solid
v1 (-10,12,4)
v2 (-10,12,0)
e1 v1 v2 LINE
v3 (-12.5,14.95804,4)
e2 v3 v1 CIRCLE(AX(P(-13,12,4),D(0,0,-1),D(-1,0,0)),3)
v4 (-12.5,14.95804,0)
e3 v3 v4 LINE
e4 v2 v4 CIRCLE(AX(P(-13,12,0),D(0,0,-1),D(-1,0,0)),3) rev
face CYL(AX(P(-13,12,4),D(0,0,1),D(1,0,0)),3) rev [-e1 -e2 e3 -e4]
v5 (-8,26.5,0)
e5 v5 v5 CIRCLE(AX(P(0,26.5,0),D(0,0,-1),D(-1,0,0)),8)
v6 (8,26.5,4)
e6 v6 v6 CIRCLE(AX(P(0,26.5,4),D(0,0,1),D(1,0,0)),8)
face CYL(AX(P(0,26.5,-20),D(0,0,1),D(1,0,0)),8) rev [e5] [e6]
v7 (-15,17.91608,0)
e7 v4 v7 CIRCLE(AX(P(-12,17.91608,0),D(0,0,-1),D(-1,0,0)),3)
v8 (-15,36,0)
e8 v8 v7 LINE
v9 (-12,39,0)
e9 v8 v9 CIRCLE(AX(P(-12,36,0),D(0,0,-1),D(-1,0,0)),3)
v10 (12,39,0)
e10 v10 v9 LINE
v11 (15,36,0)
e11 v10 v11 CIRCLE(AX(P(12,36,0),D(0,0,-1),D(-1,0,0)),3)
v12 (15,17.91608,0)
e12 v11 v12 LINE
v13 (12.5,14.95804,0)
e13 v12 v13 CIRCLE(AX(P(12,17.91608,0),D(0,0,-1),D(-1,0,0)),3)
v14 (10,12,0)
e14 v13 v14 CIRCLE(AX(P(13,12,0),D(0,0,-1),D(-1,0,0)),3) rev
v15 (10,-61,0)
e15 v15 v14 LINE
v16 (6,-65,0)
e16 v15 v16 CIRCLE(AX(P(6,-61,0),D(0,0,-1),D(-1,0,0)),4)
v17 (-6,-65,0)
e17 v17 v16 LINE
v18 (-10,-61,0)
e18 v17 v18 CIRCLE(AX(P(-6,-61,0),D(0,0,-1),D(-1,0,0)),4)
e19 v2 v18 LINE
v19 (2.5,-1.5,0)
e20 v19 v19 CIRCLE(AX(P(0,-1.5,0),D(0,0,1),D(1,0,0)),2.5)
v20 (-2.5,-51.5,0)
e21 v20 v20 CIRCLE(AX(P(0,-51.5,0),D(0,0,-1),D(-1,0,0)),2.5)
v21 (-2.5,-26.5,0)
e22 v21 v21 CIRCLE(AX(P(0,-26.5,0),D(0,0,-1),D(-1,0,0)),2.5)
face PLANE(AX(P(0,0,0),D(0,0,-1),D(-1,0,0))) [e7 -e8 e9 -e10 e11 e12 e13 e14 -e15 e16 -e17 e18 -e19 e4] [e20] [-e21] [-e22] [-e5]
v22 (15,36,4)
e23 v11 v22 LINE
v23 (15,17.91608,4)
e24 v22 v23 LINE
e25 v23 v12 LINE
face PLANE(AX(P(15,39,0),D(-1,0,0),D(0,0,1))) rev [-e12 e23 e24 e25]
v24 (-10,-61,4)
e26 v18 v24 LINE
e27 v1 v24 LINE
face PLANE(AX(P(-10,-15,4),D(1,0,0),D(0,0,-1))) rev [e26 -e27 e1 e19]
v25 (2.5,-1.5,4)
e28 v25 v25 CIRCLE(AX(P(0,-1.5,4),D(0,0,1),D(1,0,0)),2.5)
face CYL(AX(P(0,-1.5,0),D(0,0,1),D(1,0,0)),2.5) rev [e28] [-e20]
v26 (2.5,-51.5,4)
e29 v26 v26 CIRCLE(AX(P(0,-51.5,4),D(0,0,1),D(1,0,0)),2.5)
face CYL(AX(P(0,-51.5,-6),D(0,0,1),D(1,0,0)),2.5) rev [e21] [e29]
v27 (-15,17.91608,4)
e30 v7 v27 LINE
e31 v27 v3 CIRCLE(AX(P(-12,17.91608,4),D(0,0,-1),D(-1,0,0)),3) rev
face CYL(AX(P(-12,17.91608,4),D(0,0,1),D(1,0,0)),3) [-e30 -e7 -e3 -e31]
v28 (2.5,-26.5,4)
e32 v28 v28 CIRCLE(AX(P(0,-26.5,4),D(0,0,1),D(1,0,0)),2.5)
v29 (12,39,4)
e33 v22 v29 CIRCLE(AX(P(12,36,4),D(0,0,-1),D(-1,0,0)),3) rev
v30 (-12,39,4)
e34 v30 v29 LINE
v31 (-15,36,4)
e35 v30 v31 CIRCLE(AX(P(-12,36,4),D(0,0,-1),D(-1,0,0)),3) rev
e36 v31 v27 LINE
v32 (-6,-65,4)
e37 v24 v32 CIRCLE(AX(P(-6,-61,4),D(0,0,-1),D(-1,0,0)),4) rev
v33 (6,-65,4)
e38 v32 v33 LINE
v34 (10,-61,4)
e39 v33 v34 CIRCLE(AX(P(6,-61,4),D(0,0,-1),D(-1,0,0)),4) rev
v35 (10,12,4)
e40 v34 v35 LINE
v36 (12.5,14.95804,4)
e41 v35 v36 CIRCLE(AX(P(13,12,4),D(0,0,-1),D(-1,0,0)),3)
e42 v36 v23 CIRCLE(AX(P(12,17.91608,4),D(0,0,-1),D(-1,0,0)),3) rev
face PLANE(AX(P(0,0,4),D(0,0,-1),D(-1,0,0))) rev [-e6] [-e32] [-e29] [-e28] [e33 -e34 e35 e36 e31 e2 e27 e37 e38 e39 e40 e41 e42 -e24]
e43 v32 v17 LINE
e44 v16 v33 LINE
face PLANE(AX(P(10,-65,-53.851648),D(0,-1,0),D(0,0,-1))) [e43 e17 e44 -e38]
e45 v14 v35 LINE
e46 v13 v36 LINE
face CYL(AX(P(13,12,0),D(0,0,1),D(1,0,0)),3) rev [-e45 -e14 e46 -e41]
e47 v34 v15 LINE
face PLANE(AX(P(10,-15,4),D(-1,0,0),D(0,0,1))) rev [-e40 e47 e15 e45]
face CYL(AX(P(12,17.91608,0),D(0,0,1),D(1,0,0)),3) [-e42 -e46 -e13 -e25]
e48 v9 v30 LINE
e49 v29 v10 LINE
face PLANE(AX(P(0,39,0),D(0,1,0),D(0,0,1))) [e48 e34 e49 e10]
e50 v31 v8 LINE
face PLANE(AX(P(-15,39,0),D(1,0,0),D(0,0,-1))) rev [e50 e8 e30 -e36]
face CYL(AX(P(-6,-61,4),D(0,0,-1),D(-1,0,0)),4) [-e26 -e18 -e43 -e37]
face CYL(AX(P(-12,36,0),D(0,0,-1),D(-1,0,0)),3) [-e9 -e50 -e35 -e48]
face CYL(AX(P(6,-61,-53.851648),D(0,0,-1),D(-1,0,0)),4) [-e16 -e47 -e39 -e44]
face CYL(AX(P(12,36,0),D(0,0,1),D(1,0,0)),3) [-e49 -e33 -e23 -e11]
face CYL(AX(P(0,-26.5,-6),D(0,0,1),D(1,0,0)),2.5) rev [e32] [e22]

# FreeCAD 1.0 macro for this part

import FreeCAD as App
import Part
import Sketcher
from FreeCAD import Vector


def edges_at(feature, points):
    """Names of the edges that pass closest to the given points."""
    edges = feature.Shape.Edges
    near = lambda p: min(range(len(edges)), key=lambda i: edges[i].distToShape(Part.Vertex(*p))[0])
    return sorted({f"Edge{near(p) + 1}" for p in points})


def add_polygon(sketch, points):
    """Adds a closed chain of lines whose ends are joined by coincident constraints."""
    first, n = sketch.GeometryCount, len(points)
    for a, b in zip(points, points[1:] + points[:1]):
        sketch.addGeometry(Part.LineSegment(App.Vector(*a, 0), App.Vector(*b, 0)), False)
    for i in range(n):
        sketch.addConstraint(Sketcher.Constraint("Coincident", first + i, 2, first + (i + 1) % n, 1))

doc = App.newDocument("Part")
body = doc.addObject("PartDesign::Body", "Body")

sketch1 = doc.addObject("Sketcher::SketchObject", "Sketch")
body.addObject(sketch1)
sketch1.AttachmentSupport = (doc.XY_Plane, [""])
sketch1.MapMode = "FlatFace"
add_polygon(sketch1, [(-10, 15), (-10, -15), (10, -15), (10, 15)])
sketch1.addGeometry(Part.Circle(Vector(-5, -7, 0), Vector(0, 0, 1), 1.5), False)
sketch1.addGeometry(Part.Circle(Vector(5, -7, 0), Vector(0, 0, 1), 1.5), False)
sketch1.addGeometry(Part.Circle(Vector(-5, 3, 0), Vector(0, 0, 1), 1.5), False)
sketch1.addGeometry(Part.Circle(Vector(5, 3, 0), Vector(0, 0, 1), 1.5), False)
sketch1.addConstraint(Sketcher.Constraint("Vertical", 0))
sketch1.addConstraint(Sketcher.Constraint("Horizontal", 1))
sketch1.addConstraint(Sketcher.Constraint("Vertical", 2))
sketch1.addConstraint(Sketcher.Constraint("Horizontal", 3))
sketch1.addConstraint(Sketcher.Constraint("Equal", 4, 5))
sketch1.addConstraint(Sketcher.Constraint("Equal", 5, 6))
sketch1.addConstraint(Sketcher.Constraint("Equal", 6, 7))
sketch1.addConstraint(Sketcher.Constraint("Symmetric", 0, 2, 2, 2, -1, 1))
sketch1.addConstraint(Sketcher.Constraint("Symmetric", 4, 3, 5, 3, -2))
sketch1.addConstraint(Sketcher.Constraint("Symmetric", 6, 3, 7, 3, -2))
sketch1.addConstraint(Sketcher.Constraint("Vertical", 4, 3, 6, 3))
sketch1.addConstraint(Sketcher.Constraint("Diameter", 4, 3.0))
sketch1.addConstraint(Sketcher.Constraint("DistanceX", 1, 1, 1, 2, 20.0))
sketch1.addConstraint(Sketcher.Constraint("DistanceY", 0, 2, 0, 1, 30.0))
sketch1.addConstraint(Sketcher.Constraint("DistanceX", 4, 3, -1, 1, 5.0))
sketch1.addConstraint(Sketcher.Constraint("DistanceY", 4, 3, -1, 1, 7.0))
sketch1.addConstraint(Sketcher.Constraint("DistanceY", -1, 1, 6, 3, 3.0))
pad1 = doc.addObject("PartDesign::Pad", "Pad")
body.addObject(pad1)
pad1.Profile = sketch1
pad1.Length = 4

sketch2 = doc.addObject("Sketcher::SketchObject", "Sketch001")
body.addObject(sketch2)
sketch2.AttachmentSupport = (doc.XZ_Plane, [""])
sketch2.MapMode = "FlatFace"
sketch2.AttachmentOffset = App.Placement(Vector(0, 0, -15), App.Rotation())
add_polygon(sketch2, [(-15, 0), (-15, 4), (15, 4), (15, 0)])
sketch2.addConstraint(Sketcher.Constraint("Vertical", 0))
sketch2.addConstraint(Sketcher.Constraint("Horizontal", 1))
sketch2.addConstraint(Sketcher.Constraint("Vertical", 2))
sketch2.addConstraint(Sketcher.Constraint("Horizontal", 3))
sketch2.addConstraint(Sketcher.Constraint("Symmetric", 2, 2, 3, 2, -1, 1))
sketch2.addConstraint(Sketcher.Constraint("DistanceX", 1, 1, 1, 2, 30.0))
sketch2.addConstraint(Sketcher.Constraint("DistanceY", 0, 1, 0, 2, 4.0))
pad2 = doc.addObject("PartDesign::Pad", "Pad001")
body.addObject(pad2)
pad2.Profile = sketch2
pad2.Length = 24
pad2.Reversed = True
doc.recompute()

fillet = doc.addObject("PartDesign::Fillet", "Fillet")
body.addObject(fillet)
fillet.Base = (pad2, edges_at(pad2, [(-10, 15, 2), (10, 15, 2)]))
fillet.Radius = 3

sketch3 = doc.addObject("Sketcher::SketchObject", "Sketch002")
body.addObject(sketch3)
sketch3.AttachmentSupport = (doc.XY_Plane, [""])
sketch3.MapMode = "FlatFace"
sketch3.AttachmentOffset = App.Placement(Vector(0, 0, 4), App.Rotation())
sketch3.addGeometry(Part.Circle(Vector(0, 26, 0), Vector(0, 0, 1), 8), False)
sketch3.addConstraint(Sketcher.Constraint("PointOnObject", 0, 3, -2))
sketch3.addConstraint(Sketcher.Constraint("Diameter", 0, 16.0))
sketch3.addConstraint(Sketcher.Constraint("DistanceY", -1, 1, 0, 3, 26.5))
pocket1 = doc.addObject("PartDesign::Pocket", "Pocket")
body.addObject(pocket1)
pocket1.Profile = sketch3
pocket1.Length = 24
doc.recompute()

fillet2 = doc.addObject("PartDesign::Fillet", "Fillet001")
body.addObject(fillet2)
fillet2.Base = (pocket1, edges_at(pocket1, [
    (15, 15, 2),
    (15, 39, 2),
    (-15, 39, 2),
    (-15, 15, 2),
]))
fillet2.Radius = 3

sketch4 = doc.addObject("Sketcher::SketchObject", "Sketch003")
body.addObject(sketch4)
sketch4.AttachmentSupport = (doc.XY_Plane, [""])
sketch4.MapMode = "FlatFace"
sketch4.AttachmentOffset = App.Placement(Vector(0, 0, 4), App.Rotation())
sketch4.addGeometry(Part.Circle(Vector(5, 3, 0), Vector(0, 0, 1), 1.5), False)
sketch4.addGeometry(Part.Circle(Vector(5, -7, 0), Vector(0, 0, 1), 1.5), False)
sketch4.addGeometry(Part.Circle(Vector(-5, 3, 0), Vector(0, 0, 1), 1.5), False)
sketch4.addGeometry(Part.Circle(Vector(-5, -7, 0), Vector(0, 0, 1), 1.5), False)
sketch4.addConstraint(Sketcher.Constraint("Equal", 0, 1))
sketch4.addConstraint(Sketcher.Constraint("Equal", 1, 2))
sketch4.addConstraint(Sketcher.Constraint("Equal", 2, 3))
sketch4.addConstraint(Sketcher.Constraint("Symmetric", 0, 3, 2, 3, -2))
sketch4.addConstraint(Sketcher.Constraint("Symmetric", 1, 3, 3, 3, -2))
sketch4.addConstraint(Sketcher.Constraint("Vertical", 0, 3, 1, 3))
sketch4.addConstraint(Sketcher.Constraint("Diameter", 0, 3.0))
sketch4.addConstraint(Sketcher.Constraint("DistanceX", -1, 1, 0, 3, 5.0))
sketch4.addConstraint(Sketcher.Constraint("DistanceY", -1, 1, 0, 3, 3.0))
sketch4.addConstraint(Sketcher.Constraint("DistanceY", 1, 3, -1, 1, 7.0))
pad3 = doc.addObject("PartDesign::Pad", "Pad002")
body.addObject(pad3)
pad3.Profile = sketch4
pad3.Length = 4
pad3.Reversed = True

sketch5 = doc.addObject("Sketcher::SketchObject", "Sketch004")
body.addObject(sketch5)
sketch5.AttachmentSupport = (doc.XY_Plane, [""])
sketch5.MapMode = "FlatFace"
sketch5.AttachmentOffset = App.Placement(Vector(0, 0, 4), App.Rotation())
sketch5.addGeometry(Part.Circle(Vector(0, -1.5, 0), Vector(0, 0, 1), 2.5), False)
sketch5.addConstraint(Sketcher.Constraint("PointOnObject", 0, 3, -2))
sketch5.addConstraint(Sketcher.Constraint("Diameter", 0, 5.0))
sketch5.addConstraint(Sketcher.Constraint("DistanceY", 0, 3, -1, 1, 1.5))
pocket2 = doc.addObject("PartDesign::Pocket", "Pocket001")
body.addObject(pocket2)
pocket2.Profile = sketch5
pocket2.Type = "ThroughAll"

sketch6 = doc.addObject("Sketcher::SketchObject", "Sketch005")
body.addObject(sketch6)
sketch6.AttachmentSupport = (doc.XY_Plane, [""])
sketch6.MapMode = "FlatFace"
sketch6.AttachmentOffset = App.Placement(Vector(0, 0, 4), App.Rotation())
add_polygon(sketch6, [(-10, -15), (-10, -65), (10, -65), (10, -15)])
sketch6.addConstraint(Sketcher.Constraint("Vertical", 0))
sketch6.addConstraint(Sketcher.Constraint("Horizontal", 1))
sketch6.addConstraint(Sketcher.Constraint("Vertical", 2))
sketch6.addConstraint(Sketcher.Constraint("Horizontal", 3))
sketch6.addConstraint(Sketcher.Constraint("DistanceX", 1, 1, 1, 2, 20.0))
sketch6.addConstraint(Sketcher.Constraint("DistanceY", 0, 2, 0, 1, 50.0))
sketch6.addConstraint(Sketcher.Constraint("DistanceX", 0, 2, -1, 1, 10.0))
sketch6.addConstraint(Sketcher.Constraint("DistanceY", 0, 2, -1, 1, 65.0))
pad4 = doc.addObject("PartDesign::Pad", "Pad003")
body.addObject(pad4)
pad4.Profile = sketch6
pad4.Length = 4
pad4.Reversed = True

sketch7 = doc.addObject("Sketcher::SketchObject", "Sketch006")
body.addObject(sketch7)
sketch7.AttachmentSupport = (doc.XY_Plane, [""])
sketch7.MapMode = "FlatFace"
sketch7.AttachmentOffset = App.Placement(Vector(0, 0, 4), App.Rotation())
sketch7.addGeometry(Part.Circle(Vector(0, -26.5, 0), Vector(0, 0, 1), 2.5), False)
sketch7.addGeometry(Part.Circle(Vector(0, -51.5, 0), Vector(0, 0, 1), 2.5), False)
sketch7.addConstraint(Sketcher.Constraint("Equal", 0, 1))
sketch7.addConstraint(Sketcher.Constraint("PointOnObject", 0, 3, -2))
sketch7.addConstraint(Sketcher.Constraint("PointOnObject", 1, 3, -2))
sketch7.addConstraint(Sketcher.Constraint("Diameter", 0, 5.0))
sketch7.addConstraint(Sketcher.Constraint("DistanceY", 1, 3, 0, 3, 25.0))
sketch7.addConstraint(Sketcher.Constraint("DistanceY", 0, 3, -1, 1, 26.5))
pocket3 = doc.addObject("PartDesign::Pocket", "Pocket002")
body.addObject(pocket3)
pocket3.Profile = sketch7
pocket3.Length = 10
doc.recompute()

fillet3 = doc.addObject("PartDesign::Fillet", "Fillet002")
body.addObject(fillet3)
fillet3.Base = (pocket3, edges_at(pocket3, [(10, -65, 2)]))
fillet3.Radius = 4
doc.recompute()

fillet4 = doc.addObject("PartDesign::Fillet", "Fillet003")
body.addObject(fillet4)
fillet4.Base = (fillet3, edges_at(fillet3, [(-10, -65, 2)]))
fillet4.Radius = 4

doc.recompute()
